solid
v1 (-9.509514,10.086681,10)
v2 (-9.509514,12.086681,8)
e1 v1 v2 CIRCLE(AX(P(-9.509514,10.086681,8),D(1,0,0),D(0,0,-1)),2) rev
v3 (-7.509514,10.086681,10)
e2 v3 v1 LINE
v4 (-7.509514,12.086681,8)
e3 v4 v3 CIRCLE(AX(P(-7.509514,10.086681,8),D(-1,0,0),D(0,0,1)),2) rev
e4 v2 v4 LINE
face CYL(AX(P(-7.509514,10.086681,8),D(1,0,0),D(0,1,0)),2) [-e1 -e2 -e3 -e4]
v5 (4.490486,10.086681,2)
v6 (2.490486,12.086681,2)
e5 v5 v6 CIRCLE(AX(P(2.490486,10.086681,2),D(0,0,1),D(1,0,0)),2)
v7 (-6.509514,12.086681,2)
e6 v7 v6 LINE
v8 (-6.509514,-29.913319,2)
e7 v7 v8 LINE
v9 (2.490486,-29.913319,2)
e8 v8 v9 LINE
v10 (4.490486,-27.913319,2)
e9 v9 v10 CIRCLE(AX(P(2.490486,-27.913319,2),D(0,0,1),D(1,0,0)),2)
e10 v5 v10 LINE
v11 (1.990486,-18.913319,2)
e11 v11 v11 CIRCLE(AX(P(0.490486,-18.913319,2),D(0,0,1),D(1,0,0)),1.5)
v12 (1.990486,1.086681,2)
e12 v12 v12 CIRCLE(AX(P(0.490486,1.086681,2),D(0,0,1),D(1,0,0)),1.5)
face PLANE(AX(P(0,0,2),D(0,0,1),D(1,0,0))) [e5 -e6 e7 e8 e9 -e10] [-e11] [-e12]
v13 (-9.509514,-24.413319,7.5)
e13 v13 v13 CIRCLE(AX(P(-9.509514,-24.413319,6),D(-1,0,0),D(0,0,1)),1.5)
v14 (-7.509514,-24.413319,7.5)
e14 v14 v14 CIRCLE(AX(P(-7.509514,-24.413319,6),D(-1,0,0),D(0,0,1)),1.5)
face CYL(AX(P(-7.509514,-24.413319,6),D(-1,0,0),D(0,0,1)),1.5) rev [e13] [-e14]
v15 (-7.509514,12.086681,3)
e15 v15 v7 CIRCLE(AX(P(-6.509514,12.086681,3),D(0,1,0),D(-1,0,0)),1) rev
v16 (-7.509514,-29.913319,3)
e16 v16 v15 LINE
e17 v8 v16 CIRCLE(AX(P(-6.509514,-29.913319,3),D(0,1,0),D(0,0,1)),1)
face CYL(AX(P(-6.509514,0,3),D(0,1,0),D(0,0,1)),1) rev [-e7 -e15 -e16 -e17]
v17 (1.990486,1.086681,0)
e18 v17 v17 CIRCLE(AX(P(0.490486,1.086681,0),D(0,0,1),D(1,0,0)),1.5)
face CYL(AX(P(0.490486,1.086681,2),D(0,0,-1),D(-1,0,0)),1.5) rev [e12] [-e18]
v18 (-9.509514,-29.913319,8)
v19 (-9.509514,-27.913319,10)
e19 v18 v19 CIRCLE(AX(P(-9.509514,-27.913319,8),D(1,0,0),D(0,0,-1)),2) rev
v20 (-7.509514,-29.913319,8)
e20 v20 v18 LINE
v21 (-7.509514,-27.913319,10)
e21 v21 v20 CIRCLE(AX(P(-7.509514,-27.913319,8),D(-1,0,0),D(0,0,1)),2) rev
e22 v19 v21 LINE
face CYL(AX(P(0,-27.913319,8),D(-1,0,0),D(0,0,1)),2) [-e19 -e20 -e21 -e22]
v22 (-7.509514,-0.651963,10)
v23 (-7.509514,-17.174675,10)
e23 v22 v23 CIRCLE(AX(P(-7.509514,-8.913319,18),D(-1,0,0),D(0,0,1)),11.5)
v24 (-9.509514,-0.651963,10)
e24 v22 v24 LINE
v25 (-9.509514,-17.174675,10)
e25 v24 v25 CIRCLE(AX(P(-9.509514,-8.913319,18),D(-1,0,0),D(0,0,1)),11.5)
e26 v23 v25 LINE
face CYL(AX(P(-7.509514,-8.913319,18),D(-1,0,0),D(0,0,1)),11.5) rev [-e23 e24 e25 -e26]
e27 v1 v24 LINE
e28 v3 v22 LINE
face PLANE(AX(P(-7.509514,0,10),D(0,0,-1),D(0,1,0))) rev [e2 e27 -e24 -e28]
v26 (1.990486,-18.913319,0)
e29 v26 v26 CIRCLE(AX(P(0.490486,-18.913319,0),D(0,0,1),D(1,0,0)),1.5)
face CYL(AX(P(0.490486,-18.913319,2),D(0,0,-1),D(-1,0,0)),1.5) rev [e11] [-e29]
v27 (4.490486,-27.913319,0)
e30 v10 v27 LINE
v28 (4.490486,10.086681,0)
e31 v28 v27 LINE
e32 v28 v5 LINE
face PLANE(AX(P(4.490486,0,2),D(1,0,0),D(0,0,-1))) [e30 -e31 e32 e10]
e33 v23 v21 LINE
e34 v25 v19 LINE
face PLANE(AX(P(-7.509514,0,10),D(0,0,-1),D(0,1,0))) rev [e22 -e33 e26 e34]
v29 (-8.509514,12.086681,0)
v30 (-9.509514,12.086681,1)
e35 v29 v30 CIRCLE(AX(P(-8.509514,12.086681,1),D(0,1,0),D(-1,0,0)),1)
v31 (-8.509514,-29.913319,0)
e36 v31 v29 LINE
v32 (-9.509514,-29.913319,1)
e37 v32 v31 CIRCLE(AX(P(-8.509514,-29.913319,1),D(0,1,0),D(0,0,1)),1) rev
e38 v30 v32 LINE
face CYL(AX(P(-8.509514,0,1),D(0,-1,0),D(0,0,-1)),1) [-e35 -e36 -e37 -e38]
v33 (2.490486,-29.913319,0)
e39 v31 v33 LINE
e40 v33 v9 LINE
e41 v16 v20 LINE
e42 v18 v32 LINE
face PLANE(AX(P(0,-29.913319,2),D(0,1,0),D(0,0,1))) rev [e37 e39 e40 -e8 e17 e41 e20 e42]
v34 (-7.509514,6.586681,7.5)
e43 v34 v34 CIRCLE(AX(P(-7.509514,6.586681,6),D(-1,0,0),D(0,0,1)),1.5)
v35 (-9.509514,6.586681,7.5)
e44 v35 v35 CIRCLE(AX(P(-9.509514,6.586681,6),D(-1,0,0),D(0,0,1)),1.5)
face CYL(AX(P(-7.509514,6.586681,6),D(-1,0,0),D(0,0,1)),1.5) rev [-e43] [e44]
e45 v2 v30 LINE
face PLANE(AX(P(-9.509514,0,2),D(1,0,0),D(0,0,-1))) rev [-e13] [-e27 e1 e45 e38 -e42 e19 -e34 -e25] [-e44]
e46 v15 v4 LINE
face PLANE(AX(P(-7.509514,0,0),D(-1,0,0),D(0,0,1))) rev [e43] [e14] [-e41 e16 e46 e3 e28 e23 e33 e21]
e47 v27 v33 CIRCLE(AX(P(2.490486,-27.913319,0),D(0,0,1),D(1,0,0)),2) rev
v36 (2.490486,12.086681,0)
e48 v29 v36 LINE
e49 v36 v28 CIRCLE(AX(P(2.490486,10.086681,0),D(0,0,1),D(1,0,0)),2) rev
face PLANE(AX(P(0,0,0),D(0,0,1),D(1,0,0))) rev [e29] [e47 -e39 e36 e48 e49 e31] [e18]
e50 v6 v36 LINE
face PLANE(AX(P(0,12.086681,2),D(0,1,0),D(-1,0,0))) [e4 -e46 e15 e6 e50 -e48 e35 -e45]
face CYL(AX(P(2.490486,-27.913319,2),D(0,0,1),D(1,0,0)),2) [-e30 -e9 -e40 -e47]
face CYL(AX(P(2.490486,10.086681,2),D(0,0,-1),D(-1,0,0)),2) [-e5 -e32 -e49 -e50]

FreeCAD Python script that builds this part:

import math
import FreeCAD as App
import Part
import Sketcher
from FreeCAD import Vector
Q = App.Units.Quantity


def edges_at(feature, points):
    """Names of the edges that pass closest to the given points."""
    edges = feature.Shape.Edges
    near = lambda p: min(range(len(edges)), key=lambda i: edges[i].distToShape(Part.Vertex(*p))[0])
    return sorted({f"Edge{near(p) + 1}" for p in points})


def add_polygon(sketch, points):
    """Adds a closed chain of lines whose ends are joined by coincident constraints."""
    first, n = sketch.GeometryCount, len(points)
    for a, b in zip(points, points[1:] + points[:1]):
        sketch.addGeometry(Part.LineSegment(App.Vector(*a, 0), App.Vector(*b, 0)), False)
    for i in range(n):
        sketch.addConstraint(Sketcher.Constraint("Coincident", first + i, 2, first + (i + 1) % n, 1))

doc = App.newDocument("Part")
body = doc.addObject("PartDesign::Body", "Body")

sketch1 = body.newObject("Sketcher::SketchObject", "Sketch")
sketch1.AttachmentSupport = (doc.getObject("XY_Plane"), [""])
sketch1.MapMode = "FlatFace"
add_polygon(sketch1, [(-9.509514, 12.086681), (-9.509514, -29.913319), (4.490486, -29.913319), (4.490486, 12.086681)])
sketch1.addGeometry(Part.Circle(Vector(0.490486, -18.913319, 0), Vector(0, 0, 1), 1.5), False)
sketch1.addGeometry(Part.Circle(Vector(0.490486, 1.086681, 0), Vector(0, 0, 1), 1.5), False)
sketch1.addConstraint([
    Sketcher.Constraint("Vertical", 0),
    Sketcher.Constraint("Horizontal", 1),
    Sketcher.Constraint("Vertical", 2),
    Sketcher.Constraint("Horizontal", 3),
    Sketcher.Constraint("Equal", 4, 5),
    Sketcher.Constraint("Vertical", 4, 3, 5, 3),
    Sketcher.Constraint("Diameter", 4, Q("3 mm")),
    Sketcher.Constraint("DistanceX", 1, 1, 1, 2, Q("14 mm")),
    Sketcher.Constraint("DistanceY", 0, 2, 0, 1, Q("42 mm")),
    Sketcher.Constraint("DistanceY", 4, 3, 5, 3, Q("20 mm")),
    Sketcher.Constraint("DistanceX", 0, 2, 4, 3, Q("10 mm")),
    Sketcher.Constraint("DistanceY", 0, 2, 4, 3, Q("11 mm")),
    Sketcher.Constraint("DistanceY", 4, 3, -1, 1, Q("18.913319 mm")),
    Sketcher.Constraint("DistanceX", -1, 1, 4, 3, Q("0.490486 mm")),
])
pad1 = body.newObject("PartDesign::Pad", "Pad")
pad1.Profile = sketch1
pad1.Length = 2

sketch2 = body.newObject("Sketcher::SketchObject", "Sketch001")
sketch2.AttachmentSupport = (doc.getObject("YZ_Plane"), [""])
sketch2.MapMode = "FlatFace"
sketch2.AttachmentOffset = App.Placement(Vector(0, 0, -9.509514), App.Rotation())
sketch2.addGeometry([
    Part.LineSegment(Vector(12.086681, 10, 0), Vector(12.086681, 2, 0)),
    Part.LineSegment(Vector(12.086681, 2, 0), Vector(-29.913319, 2, 0)),
    Part.LineSegment(Vector(-29.913319, 2, 0), Vector(-29.913319, 10, 0)),
    Part.LineSegment(Vector(-29.913319, 10, 0), Vector(-17.174675, 10, 0)),
    Part.ArcOfCircle(Part.Circle(Vector(-8.913319, 18, 0), Vector(0, 0, 1), 11.5), math.radians(-135.92079), math.radians(-44.07921)),
    Part.LineSegment(Vector(-0.651963, 10, 0), Vector(12.086681, 10, 0)),
    Part.ArcOfCircle(Part.Circle(Vector(-24.413319, 6, 0), Vector(0, 0, 1), 1.5), math.radians(0), math.radians(90)),
    Part.ArcOfCircle(Part.Circle(Vector(-24.413319, 6, 0), Vector(0, 0, 1), 1.5), math.radians(90), math.radians(360)),
    Part.ArcOfCircle(Part.Circle(Vector(6.586681, 6, 0), Vector(0, 0, 1), 1.5), math.radians(180), math.radians(450)),
    Part.ArcOfCircle(Part.Circle(Vector(6.586681, 6, 0), Vector(0, 0, 1), 1.5), math.radians(90), math.radians(180)),
], False)
sketch2.addConstraint([
    Sketcher.Constraint("Coincident", 0, 2, 1, 1),
    Sketcher.Constraint("Coincident", 1, 2, 2, 1),
    Sketcher.Constraint("Coincident", 2, 2, 3, 1),
    Sketcher.Constraint("Coincident", 3, 2, 4, 1),
    Sketcher.Constraint("Coincident", 4, 2, 5, 1),
    Sketcher.Constraint("Coincident", 5, 2, 0, 1),
    Sketcher.Constraint("Tangent", 6, 1, 7, 2),
    Sketcher.Constraint("Coincident", 7, 1, 6, 2),
    Sketcher.Constraint("Tangent", 8, 1, 9, 2),
    Sketcher.Constraint("Coincident", 9, 1, 8, 2),
    Sketcher.Constraint("Vertical", 0),
    Sketcher.Constraint("Horizontal", 1),
    Sketcher.Constraint("Vertical", 2),
    Sketcher.Constraint("Horizontal", 3),
    Sketcher.Constraint("Horizontal", 5),
    Sketcher.Constraint("Equal", 7, 8),
    Sketcher.Constraint("Horizontal", 7, 3, 8, 3),
    Sketcher.Constraint("Horizontal", 3, 2, 4, 2),
    Sketcher.Constraint("Horizontal", 9, 3, 6, 1),
    Sketcher.Constraint("Horizontal", 6, 1, 8, 1),
    Sketcher.Constraint("Vertical", 6, 3, 7, 1),
    Sketcher.Constraint("Vertical", 8, 3, 9, 1),
    Sketcher.Constraint("Equal", 3, 5),
    Sketcher.Constraint("Radius", 4, Q("11.5 mm")),
    Sketcher.Constraint("Radius", 6, Q("1.5 mm")),
    Sketcher.Constraint("DistanceX", 1, 2, 1, 1, Q("42 mm")),
    Sketcher.Constraint("DistanceY", 0, 2, 0, 1, Q("8 mm")),
    Sketcher.Constraint("DistanceY", -1, 1, 4, 3, Q("18 mm")),
    Sketcher.Constraint("DistanceY", -1, 1, 6, 3, Q("6 mm")),
    Sketcher.Constraint("DistanceY", -1, 1, 0, 2, Q("2 mm")),
    Sketcher.Constraint("DistanceX", 6, 3, 8, 3, Q("31 mm")),
    Sketcher.Constraint("DistanceX", 1, 2, 6, 1, Q("7 mm")),
    Sketcher.Constraint("DistanceX", 4, 3, -1, 1, Q("8.913319 mm")),
])
pad2 = body.newObject("PartDesign::Pad", "Pad001")
pad2.Profile = sketch2
pad2.Length = 2
doc.recompute()

fillet = body.newObject("PartDesign::Fillet", "Fillet")
fillet.Base = (pad2, edges_at(pad2, [
    (4.49, -29.913, 1),
    (4.49, 12.087, 1),
    (-8.51, -29.913, 10),
    (-8.51, 12.087, 10),
]))
fillet.Radius = 2
doc.recompute()

fillet2 = body.newObject("PartDesign::Fillet", "Fillet001")
fillet2.Base = (fillet, edges_at(fillet, [(-7.51, -8.913, 2), (-9.51, -8.913, 0)]))
fillet2.Radius = 1

doc.recompute()
